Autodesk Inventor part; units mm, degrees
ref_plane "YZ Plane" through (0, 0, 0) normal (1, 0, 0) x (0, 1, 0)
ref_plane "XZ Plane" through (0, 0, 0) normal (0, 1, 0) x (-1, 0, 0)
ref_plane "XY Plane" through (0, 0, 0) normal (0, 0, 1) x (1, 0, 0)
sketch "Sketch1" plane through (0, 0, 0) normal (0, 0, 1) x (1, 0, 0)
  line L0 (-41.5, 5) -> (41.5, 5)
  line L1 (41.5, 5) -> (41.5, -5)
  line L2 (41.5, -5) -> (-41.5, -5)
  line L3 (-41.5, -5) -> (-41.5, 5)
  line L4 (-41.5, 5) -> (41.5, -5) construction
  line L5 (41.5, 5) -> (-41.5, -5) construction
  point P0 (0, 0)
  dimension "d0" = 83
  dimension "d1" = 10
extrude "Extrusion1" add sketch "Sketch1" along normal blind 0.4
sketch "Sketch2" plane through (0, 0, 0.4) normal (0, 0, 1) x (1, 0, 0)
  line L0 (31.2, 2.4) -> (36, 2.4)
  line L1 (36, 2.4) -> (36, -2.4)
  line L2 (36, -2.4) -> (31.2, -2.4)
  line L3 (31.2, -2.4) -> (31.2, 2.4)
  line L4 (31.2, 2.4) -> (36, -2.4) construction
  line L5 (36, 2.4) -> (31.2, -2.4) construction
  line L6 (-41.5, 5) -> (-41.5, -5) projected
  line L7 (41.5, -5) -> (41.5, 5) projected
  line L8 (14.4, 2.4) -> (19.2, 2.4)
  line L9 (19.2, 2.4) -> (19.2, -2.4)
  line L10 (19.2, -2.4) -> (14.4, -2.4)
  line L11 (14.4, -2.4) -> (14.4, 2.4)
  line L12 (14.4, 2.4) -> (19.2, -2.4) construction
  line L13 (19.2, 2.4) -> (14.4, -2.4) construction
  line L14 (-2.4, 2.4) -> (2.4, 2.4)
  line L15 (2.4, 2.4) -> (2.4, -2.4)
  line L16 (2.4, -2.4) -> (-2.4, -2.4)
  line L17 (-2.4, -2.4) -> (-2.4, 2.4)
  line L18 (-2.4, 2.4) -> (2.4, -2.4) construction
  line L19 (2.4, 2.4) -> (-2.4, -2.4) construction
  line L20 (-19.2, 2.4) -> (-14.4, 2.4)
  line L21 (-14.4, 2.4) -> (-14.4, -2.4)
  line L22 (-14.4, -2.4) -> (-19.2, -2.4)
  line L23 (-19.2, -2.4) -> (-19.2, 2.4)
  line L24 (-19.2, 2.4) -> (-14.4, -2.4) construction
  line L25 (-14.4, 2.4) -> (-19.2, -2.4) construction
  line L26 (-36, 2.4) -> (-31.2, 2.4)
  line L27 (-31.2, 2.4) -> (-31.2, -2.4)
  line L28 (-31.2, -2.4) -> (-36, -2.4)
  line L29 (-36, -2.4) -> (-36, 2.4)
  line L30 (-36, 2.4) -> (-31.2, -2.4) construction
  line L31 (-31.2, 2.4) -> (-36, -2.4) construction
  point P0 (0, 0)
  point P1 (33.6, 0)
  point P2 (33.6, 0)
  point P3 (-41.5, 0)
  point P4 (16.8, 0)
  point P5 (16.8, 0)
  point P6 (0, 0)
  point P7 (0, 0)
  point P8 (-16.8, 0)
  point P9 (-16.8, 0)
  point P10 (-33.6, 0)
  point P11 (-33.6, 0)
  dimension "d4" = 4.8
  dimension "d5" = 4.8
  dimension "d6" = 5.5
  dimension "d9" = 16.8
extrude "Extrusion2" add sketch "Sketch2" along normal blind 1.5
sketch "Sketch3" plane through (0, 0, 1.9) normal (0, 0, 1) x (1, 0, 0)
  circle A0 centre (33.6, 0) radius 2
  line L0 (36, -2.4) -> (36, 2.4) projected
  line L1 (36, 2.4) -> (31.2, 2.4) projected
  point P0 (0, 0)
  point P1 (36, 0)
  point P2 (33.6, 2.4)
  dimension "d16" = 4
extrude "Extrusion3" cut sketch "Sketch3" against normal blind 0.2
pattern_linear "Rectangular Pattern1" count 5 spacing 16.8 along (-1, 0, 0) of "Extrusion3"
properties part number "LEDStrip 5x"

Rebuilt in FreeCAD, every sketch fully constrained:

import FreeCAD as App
import Part
import Sketcher


def add_polygon(sketch, points):
    """Adds a closed chain of lines whose ends are joined by coincident constraints."""
    first, n = sketch.GeometryCount, len(points)
    for a, b in zip(points, points[1:] + points[:1]):
        sketch.addGeometry(Part.LineSegment(App.Vector(*a, 0), App.Vector(*b, 0)), False)
    for i in range(n):
        sketch.addConstraint(Sketcher.Constraint("Coincident", first + i, 2, first + (i + 1) % n, 1))

doc = App.newDocument("Part")
params = doc.addObject("Spreadsheet::Sheet", "Params")
for row, (alias, value) in enumerate([
    ("sketch1_width", "83 mm"),
    ("sketch1_height", "10 mm"),
    ("pad1_length", "0.4 mm"),
    ("sketch2_width", "4.8 mm"),
    ("pad2_length", "1.5 mm"),
    ("sketch3_diameter", "4 mm"),
    ("pocket1_length", "0.2 mm"),
    ("linearpattern_pitch", "16.8 mm"),
], start=1):
    params.set(f"A{row}", alias)
    params.set(f"B{row}", "=" + value)
    params.setAlias(f"B{row}", alias)

body = doc.addObject("PartDesign::Body", "Body")

sketch1 = doc.addObject("Sketcher::SketchObject", "Sketch")
body.addObject(sketch1)
sketch1.AttachmentSupport = (doc.XY_Plane, [""])
sketch1.MapMode = "FlatFace"
add_polygon(sketch1, [(41.5, 5), (-41.5, 5), (-41.5, -5), (41.5, -5)])
sketch1.addConstraint([
    Sketcher.Constraint("Horizontal", 0),
    Sketcher.Constraint("Vertical", 1),
    Sketcher.Constraint("Horizontal", 2),
    Sketcher.Constraint("Vertical", 3),
    Sketcher.Constraint("Symmetric", 0, 2, 2, 2, -1, 1),
    Sketcher.Constraint("DistanceX", 0, 2, 0, 1, 83.0),
    Sketcher.Constraint("DistanceY", 1, 2, 1, 1, 10.0),
])
sketch1.setExpression("Constraints[9]", "Params.sketch1_width")
sketch1.setExpression("Constraints[10]", "Params.sketch1_height")
pad1 = doc.addObject("PartDesign::Pad", "Pad")
body.addObject(pad1)
pad1.Profile = sketch1
pad1.setExpression("Length", "Params.pad1_length")

sketch2 = doc.addObject("Sketcher::SketchObject", "Sketch001")
body.addObject(sketch2)
sketch2.AttachmentSupport = (doc.XY_Plane, [""])
sketch2.MapMode = "FlatFace"
sketch2.AttachmentOffset = App.Placement(App.Vector(0, 0, 0.4), App.Rotation())
add_polygon(sketch2, [(36, 2.4), (31.2, 2.4), (31.2, -2.4), (36, -2.4)])
add_polygon(sketch2, [(19.2, 2.4), (14.4, 2.4), (14.4, -2.4), (19.2, -2.4)])
add_polygon(sketch2, [(2.4, 2.4), (-2.4, 2.4), (-2.4, -2.4), (2.4, -2.4)])
add_polygon(sketch2, [(-14.4, 2.4), (-19.2, 2.4), (-19.2, -2.4), (-14.4, -2.4)])
add_polygon(sketch2, [(-31.2, 2.4), (-36, 2.4), (-36, -2.4), (-31.2, -2.4)])
sketch2.addConstraint([
    Sketcher.Constraint("Horizontal", 0),
    Sketcher.Constraint("Vertical", 1),
    Sketcher.Constraint("Horizontal", 2),
    Sketcher.Constraint("Vertical", 3),
    Sketcher.Constraint("Horizontal", 4),
    Sketcher.Constraint("Vertical", 5),
    Sketcher.Constraint("Horizontal", 6),
    Sketcher.Constraint("Vertical", 7),
    Sketcher.Constraint("Horizontal", 8),
    Sketcher.Constraint("Vertical", 9),
    Sketcher.Constraint("Horizontal", 10),
    Sketcher.Constraint("Vertical", 11),
    Sketcher.Constraint("Horizontal", 12),
    Sketcher.Constraint("Vertical", 13),
    Sketcher.Constraint("Horizontal", 14),
    Sketcher.Constraint("Vertical", 15),
    Sketcher.Constraint("Horizontal", 16),
    Sketcher.Constraint("Vertical", 17),
    Sketcher.Constraint("Horizontal", 18),
    Sketcher.Constraint("Vertical", 19),
    Sketcher.Constraint("Symmetric", 8, 2, 10, 2, -1, 1),
    Sketcher.Constraint("Symmetric", 6, 2, 12, 2, -1, 1),
    Sketcher.Constraint("Symmetric", 4, 2, 14, 2, -1, 1),
    Sketcher.Constraint("Symmetric", 2, 2, 16, 2, -1, 1),
    Sketcher.Constraint("Symmetric", 0, 2, 18, 2, -1, 1),
    Sketcher.Constraint("Horizontal", 3, 2, 4, 2),
    Sketcher.Constraint("Horizontal", 2, 2, 5, 2),
    Sketcher.Constraint("Horizontal", 7, 2, 8, 2),
    Sketcher.Constraint("Horizontal", 6, 2, 9, 2),
    Sketcher.Constraint("Equal", 2, 4),
    Sketcher.Constraint("Equal", 6, 8),
    Sketcher.Constraint("Equal", 18, 1),
    Sketcher.Constraint("DistanceX", 0, 2, 0, 1, 4.8),
    Sketcher.Constraint("DistanceX", 4, 2, 0, 2, 16.8),
    Sketcher.Constraint("DistanceX", 8, 2, 4, 2, 16.8),
])
sketch2.setExpression("Constraints[52]", "Params.sketch2_width")
pad2 = doc.addObject("PartDesign::Pad", "Pad001")
body.addObject(pad2)
pad2.Profile = sketch2
pad2.setExpression("Length", "Params.pad2_length")

sketch3 = doc.addObject("Sketcher::SketchObject", "Sketch002")
body.addObject(sketch3)
sketch3.AttachmentSupport = (doc.XY_Plane, [""])
sketch3.MapMode = "FlatFace"
sketch3.AttachmentOffset = App.Placement(App.Vector(0, 0, 1.9), App.Rotation())
sketch3.addGeometry(Part.Circle(App.Vector(33.6, 0, 0), App.Vector(0, 0, 1), 2), False)
sketch3.addConstraint([
    Sketcher.Constraint("PointOnObject", 0, 3, -1),
    Sketcher.Constraint("Diameter", 0, 4.0),
    Sketcher.Constraint("DistanceX", -1, 1, 0, 3, 33.6),
])
sketch3.setExpression("Constraints[1]", "Params.sketch3_diameter")
pocket1 = doc.addObject("PartDesign::Pocket", "Pocket")
body.addObject(pocket1)
pocket1.Profile = sketch3
pocket1.setExpression("Length", "Params.pocket1_length")
doc.recompute()

linearpattern = doc.addObject("PartDesign::LinearPattern", "LinearPattern")
body.addObject(linearpattern)
linearpattern.Originals = [pocket1]
linearpattern.Direction = (doc.X_Axis, [""])
linearpattern.Mode = "offset"
linearpattern.setExpression("Offset", "Params.linearpattern_pitch")
linearpattern.Occurrences = 5
linearpattern.Reversed = True
body.Tip = linearpattern

doc.recompute()
